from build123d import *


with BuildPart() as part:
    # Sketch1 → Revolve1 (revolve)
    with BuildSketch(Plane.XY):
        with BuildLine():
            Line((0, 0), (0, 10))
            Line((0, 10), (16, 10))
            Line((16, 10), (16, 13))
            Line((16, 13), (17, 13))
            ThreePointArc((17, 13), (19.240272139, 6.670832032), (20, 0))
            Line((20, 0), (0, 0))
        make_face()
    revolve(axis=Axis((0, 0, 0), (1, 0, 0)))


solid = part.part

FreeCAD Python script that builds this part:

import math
import FreeCAD as App
import Part
import Sketcher

V = App.Vector
Q = App.Units.Quantity

doc = App.newDocument("Part")
body = doc.addObject("PartDesign::Body", "Body")

# Sketch on XY plane
sketch1 = body.newObject("Sketcher::SketchObject", "Sketch")
sketch1.AttachmentSupport = (doc.getObject("XY_Plane"), [""])
sketch1.MapMode = "FlatFace"
sketch1.addGeometry([
    Part.LineSegment(V(0, 10, 0), V(0, 0, 0)),  # 0
    Part.LineSegment(V(0, 0, 0), V(20, 0, 0)),  # 1
    Part.ArcOfCircle(Part.Circle(V(-9.7, 0, 0), V(0, 0, 1), 29.7), math.radians(0), math.radians(26)),  # 2
    Part.LineSegment(V(17, 13, 0), V(16, 13, 0)),  # 3
    Part.LineSegment(V(16, 13, 0), V(16, 10, 0)),  # 4
    Part.LineSegment(V(16, 10, 0), V(0, 10, 0)),  # 5
], False)
sketch1.addConstraint([
    Sketcher.Constraint("Coincident", 0, 2, 1, 1),
    Sketcher.Constraint("Coincident", 1, 2, 2, 1),
    Sketcher.Constraint("Coincident", 2, 2, 3, 1),
    Sketcher.Constraint("Coincident", 3, 2, 4, 1),
    Sketcher.Constraint("Coincident", 4, 2, 5, 1),
    Sketcher.Constraint("Coincident", 5, 2, 0, 1),
    Sketcher.Constraint("Vertical", 0),
    Sketcher.Constraint("Horizontal", 1),
    Sketcher.Constraint("Horizontal", 3),
    Sketcher.Constraint("Vertical", 4),
    Sketcher.Constraint("Horizontal", 5),
    Sketcher.Constraint("Coincident", 0, 2, -1, 1),
    Sketcher.Constraint("PointOnObject", 2, 3, -1),
    Sketcher.Constraint("DistanceX", 1, 1, 1, 2, Q("20 mm")),
    Sketcher.Constraint("DistanceX", 3, 2, 3, 1, Q("1 mm")),
    Sketcher.Constraint("DistanceX", 5, 2, 5, 1, Q("16 mm")),
    Sketcher.Constraint("DistanceY", 0, 2, 0, 1, Q("10 mm")),
    Sketcher.Constraint("DistanceY", 4, 2, 4, 1, Q("3 mm")),
])
revolution = body.newObject("PartDesign::Revolution", "Revolution")
revolution.Profile = sketch1
revolution.ReferenceAxis = (sketch1, ["H_Axis"])
revolution.Angle = 360

doc.recompute()
